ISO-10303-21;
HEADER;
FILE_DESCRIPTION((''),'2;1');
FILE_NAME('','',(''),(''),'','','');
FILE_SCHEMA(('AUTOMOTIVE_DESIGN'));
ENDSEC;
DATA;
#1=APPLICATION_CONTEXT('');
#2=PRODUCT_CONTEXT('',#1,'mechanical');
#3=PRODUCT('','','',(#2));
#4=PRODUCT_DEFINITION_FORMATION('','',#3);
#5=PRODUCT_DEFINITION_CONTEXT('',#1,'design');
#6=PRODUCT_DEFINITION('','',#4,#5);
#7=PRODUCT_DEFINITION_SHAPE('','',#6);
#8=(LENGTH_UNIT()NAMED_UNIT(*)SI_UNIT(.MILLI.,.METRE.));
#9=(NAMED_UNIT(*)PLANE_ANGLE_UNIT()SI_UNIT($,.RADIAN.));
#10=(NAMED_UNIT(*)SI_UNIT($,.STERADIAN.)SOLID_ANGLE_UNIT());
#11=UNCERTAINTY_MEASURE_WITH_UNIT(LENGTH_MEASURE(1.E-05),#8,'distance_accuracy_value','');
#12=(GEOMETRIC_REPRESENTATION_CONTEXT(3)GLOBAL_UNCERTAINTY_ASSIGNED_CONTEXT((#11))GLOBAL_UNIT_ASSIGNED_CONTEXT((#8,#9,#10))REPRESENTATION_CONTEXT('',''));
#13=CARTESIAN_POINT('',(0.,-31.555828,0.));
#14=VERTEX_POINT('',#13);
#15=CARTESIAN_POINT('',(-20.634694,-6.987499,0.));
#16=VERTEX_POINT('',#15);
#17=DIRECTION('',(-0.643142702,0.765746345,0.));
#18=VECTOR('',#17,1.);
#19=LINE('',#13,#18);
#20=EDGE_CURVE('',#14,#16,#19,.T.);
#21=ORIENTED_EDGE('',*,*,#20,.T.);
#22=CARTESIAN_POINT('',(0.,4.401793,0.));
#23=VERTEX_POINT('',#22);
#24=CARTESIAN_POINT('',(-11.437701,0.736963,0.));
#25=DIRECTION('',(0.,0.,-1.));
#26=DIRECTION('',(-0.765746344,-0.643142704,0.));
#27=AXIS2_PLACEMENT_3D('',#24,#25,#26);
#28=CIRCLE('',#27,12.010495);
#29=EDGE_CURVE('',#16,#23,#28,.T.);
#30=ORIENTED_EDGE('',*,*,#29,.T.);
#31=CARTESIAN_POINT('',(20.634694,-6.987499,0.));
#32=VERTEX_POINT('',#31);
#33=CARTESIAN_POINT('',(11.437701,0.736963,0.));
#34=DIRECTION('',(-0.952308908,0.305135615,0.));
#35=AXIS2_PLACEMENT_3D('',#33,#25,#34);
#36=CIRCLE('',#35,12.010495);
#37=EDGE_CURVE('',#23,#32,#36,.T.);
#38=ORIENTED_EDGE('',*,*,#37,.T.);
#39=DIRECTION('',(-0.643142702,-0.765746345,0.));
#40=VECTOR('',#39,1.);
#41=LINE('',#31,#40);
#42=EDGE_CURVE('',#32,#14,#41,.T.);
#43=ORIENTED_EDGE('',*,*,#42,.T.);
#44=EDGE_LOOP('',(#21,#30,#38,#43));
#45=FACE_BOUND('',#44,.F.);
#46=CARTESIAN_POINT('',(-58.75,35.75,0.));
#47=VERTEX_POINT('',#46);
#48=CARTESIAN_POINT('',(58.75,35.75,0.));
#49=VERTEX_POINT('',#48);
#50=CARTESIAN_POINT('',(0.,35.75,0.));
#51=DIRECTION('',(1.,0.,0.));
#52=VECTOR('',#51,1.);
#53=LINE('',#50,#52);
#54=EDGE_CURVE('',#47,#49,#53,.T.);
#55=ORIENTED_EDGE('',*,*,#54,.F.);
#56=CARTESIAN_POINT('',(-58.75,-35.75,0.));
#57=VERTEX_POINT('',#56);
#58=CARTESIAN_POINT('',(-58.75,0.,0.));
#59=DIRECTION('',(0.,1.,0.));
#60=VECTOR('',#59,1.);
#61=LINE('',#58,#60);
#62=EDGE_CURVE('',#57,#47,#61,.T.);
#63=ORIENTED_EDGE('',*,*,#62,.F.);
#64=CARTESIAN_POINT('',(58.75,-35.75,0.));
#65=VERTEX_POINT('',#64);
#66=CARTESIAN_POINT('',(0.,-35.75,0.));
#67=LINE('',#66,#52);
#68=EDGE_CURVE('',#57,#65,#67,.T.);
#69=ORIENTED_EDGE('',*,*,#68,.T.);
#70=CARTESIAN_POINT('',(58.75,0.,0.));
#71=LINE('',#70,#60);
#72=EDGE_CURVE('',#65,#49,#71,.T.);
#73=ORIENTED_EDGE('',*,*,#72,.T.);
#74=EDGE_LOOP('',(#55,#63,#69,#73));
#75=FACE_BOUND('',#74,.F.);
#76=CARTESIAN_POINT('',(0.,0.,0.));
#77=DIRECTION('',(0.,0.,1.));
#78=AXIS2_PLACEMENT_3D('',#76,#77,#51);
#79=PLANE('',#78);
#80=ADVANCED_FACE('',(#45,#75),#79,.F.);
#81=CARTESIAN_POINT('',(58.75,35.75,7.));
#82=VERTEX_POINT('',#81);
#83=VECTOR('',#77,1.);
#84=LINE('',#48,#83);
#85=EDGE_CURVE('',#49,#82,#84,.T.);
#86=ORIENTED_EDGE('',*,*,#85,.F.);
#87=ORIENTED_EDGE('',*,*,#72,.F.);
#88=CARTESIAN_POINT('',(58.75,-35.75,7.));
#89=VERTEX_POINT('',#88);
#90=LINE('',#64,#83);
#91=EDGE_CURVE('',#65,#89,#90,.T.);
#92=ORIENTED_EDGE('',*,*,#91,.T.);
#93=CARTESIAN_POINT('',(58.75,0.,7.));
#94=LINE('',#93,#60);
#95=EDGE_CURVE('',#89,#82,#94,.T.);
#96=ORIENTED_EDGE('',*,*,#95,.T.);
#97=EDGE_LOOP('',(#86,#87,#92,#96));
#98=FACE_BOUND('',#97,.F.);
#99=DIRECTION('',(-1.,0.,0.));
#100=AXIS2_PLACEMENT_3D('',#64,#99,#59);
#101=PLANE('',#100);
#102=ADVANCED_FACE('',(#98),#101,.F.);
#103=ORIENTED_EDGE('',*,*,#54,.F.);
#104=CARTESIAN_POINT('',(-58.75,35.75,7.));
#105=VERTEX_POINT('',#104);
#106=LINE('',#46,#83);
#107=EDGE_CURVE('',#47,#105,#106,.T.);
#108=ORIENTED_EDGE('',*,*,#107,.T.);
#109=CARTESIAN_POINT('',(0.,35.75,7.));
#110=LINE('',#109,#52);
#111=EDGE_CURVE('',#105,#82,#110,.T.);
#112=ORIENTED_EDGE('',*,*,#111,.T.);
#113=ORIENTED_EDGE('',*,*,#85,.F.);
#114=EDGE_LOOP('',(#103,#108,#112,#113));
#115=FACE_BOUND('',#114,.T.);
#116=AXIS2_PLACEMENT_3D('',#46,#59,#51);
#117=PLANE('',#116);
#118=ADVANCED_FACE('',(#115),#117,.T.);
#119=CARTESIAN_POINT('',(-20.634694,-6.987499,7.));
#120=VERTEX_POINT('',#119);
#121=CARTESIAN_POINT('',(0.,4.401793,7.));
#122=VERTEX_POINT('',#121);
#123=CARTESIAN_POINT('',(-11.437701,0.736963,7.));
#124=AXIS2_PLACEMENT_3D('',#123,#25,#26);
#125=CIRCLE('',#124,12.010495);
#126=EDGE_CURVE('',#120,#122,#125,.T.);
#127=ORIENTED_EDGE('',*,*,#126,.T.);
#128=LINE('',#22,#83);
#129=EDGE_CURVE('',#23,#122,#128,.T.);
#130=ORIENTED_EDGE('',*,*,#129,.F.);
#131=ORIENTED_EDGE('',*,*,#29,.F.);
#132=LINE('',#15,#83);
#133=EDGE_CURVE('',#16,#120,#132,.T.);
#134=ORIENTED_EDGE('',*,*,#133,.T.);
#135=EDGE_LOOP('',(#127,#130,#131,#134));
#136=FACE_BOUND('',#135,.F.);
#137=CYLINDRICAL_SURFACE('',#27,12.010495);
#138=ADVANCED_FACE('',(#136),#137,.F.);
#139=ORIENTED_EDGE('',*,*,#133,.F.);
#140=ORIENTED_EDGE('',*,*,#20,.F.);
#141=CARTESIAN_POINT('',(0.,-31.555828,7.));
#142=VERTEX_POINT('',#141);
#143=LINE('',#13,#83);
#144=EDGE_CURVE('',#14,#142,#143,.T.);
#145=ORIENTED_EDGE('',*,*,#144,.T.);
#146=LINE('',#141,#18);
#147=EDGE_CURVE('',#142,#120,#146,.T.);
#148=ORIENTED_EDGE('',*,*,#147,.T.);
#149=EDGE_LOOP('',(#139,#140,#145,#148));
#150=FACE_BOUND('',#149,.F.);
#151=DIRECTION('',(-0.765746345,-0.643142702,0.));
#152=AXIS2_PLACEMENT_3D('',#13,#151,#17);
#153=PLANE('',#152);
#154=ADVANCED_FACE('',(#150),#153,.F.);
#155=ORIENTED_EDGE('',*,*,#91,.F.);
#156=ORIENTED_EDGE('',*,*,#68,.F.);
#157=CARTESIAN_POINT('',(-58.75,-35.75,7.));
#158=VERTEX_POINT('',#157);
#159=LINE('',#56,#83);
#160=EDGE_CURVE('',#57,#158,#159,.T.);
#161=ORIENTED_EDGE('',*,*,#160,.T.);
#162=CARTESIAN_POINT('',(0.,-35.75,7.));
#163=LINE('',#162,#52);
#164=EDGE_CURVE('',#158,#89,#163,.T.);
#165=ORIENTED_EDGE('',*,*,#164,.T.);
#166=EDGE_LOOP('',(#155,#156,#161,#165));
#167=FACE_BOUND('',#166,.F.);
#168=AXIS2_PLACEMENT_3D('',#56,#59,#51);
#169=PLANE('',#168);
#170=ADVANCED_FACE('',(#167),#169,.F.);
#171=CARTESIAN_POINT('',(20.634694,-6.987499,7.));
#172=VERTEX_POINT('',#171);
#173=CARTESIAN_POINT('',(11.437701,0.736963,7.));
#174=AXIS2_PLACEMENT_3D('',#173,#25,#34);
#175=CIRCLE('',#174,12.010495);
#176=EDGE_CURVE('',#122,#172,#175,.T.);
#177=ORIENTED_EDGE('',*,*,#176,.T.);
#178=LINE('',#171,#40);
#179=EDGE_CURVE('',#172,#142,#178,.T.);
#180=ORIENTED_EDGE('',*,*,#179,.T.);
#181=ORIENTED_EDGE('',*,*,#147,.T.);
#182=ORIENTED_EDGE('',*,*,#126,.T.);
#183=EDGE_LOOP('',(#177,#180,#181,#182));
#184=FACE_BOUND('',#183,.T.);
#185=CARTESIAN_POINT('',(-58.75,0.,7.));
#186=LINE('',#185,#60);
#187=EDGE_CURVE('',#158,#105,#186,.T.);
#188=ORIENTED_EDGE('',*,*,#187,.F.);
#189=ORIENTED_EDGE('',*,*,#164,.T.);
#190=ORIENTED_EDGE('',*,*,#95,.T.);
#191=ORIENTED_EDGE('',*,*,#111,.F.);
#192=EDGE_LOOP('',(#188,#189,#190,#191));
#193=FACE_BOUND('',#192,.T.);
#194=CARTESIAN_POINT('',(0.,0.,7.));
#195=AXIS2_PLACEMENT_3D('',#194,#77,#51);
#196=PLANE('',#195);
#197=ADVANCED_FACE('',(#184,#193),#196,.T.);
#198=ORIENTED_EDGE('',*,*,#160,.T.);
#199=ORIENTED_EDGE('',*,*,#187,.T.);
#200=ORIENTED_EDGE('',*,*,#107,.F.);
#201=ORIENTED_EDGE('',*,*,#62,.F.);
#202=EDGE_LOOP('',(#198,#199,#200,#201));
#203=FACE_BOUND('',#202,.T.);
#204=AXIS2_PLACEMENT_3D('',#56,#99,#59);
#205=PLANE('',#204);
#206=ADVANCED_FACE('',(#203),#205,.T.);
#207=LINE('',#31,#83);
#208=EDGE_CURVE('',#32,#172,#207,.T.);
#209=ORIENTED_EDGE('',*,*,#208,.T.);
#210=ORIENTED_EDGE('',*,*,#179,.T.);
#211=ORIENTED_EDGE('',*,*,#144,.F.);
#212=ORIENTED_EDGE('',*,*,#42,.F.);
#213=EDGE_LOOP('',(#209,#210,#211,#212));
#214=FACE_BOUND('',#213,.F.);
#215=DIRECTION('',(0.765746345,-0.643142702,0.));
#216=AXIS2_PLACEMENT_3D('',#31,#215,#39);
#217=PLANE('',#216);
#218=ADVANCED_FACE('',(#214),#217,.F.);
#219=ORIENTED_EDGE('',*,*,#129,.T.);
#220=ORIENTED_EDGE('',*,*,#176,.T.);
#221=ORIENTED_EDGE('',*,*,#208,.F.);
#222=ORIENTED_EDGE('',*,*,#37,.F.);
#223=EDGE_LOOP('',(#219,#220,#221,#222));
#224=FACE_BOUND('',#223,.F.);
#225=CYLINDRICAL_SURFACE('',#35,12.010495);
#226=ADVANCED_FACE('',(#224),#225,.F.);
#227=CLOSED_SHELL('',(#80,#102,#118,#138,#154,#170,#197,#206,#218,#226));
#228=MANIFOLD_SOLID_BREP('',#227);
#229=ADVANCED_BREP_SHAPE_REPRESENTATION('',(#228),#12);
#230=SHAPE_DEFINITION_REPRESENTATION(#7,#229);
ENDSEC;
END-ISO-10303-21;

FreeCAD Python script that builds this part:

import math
import FreeCAD as App
import Part
import Sketcher
from FreeCAD import Vector


def add_polygon(sketch, points):
    """Adds a closed chain of lines whose ends are joined by coincident constraints."""
    first, n = sketch.GeometryCount, len(points)
    for a, b in zip(points, points[1:] + points[:1]):
        sketch.addGeometry(Part.LineSegment(App.Vector(*a, 0), App.Vector(*b, 0)), False)
    for i in range(n):
        sketch.addConstraint(Sketcher.Constraint("Coincident", first + i, 2, first + (i + 1) % n, 1))

doc = App.newDocument("Part")
body = doc.addObject("PartDesign::Body", "Body")

sketch1 = body.newObject("Sketcher::SketchObject", "Sketch")
sketch1.AttachmentSupport = (doc.getObject("XY_Plane"), [""])
sketch1.MapMode = "FlatFace"
add_polygon(sketch1, [(-59, 36), (-59, -36), (59, -36), (59, 36)])
sketch1.addGeometry(Part.ArcOfCircle(Part.Circle(Vector(11, 1, 0), Vector(0, 0, 1), 12), math.radians(-40), math.radians(162)), False)
sketch1.addGeometry(Part.LineSegment(Vector(21, -7, 0), Vector(0, -32, 0)), False)
sketch1.addGeometry(Part.LineSegment(Vector(0, -32, 0), Vector(-21, -7, 0)), False)
sketch1.addGeometry(Part.ArcOfCircle(Part.Circle(Vector(-11, 1, 0), Vector(0, 0, 1), 12), math.radians(18), math.radians(220)), False)
sketch1.addConstraint(Sketcher.Constraint("Tangent", 4, 1, 5, 1))
sketch1.addConstraint(Sketcher.Constraint("Coincident", 5, 2, 6, 1))
sketch1.addConstraint(Sketcher.Constraint("Tangent", 6, 2, 7, 2))
sketch1.addConstraint(Sketcher.Constraint("Coincident", 7, 1, 4, 2))
sketch1.addConstraint(Sketcher.Constraint("Vertical", 0))
sketch1.addConstraint(Sketcher.Constraint("Horizontal", 1))
sketch1.addConstraint(Sketcher.Constraint("Vertical", 2))
sketch1.addConstraint(Sketcher.Constraint("Horizontal", 3))
sketch1.addConstraint(Sketcher.Constraint("Equal", 4, 7))
sketch1.addConstraint(Sketcher.Constraint("Symmetric", 0, 2, 2, 2, -1, 1))
sketch1.addConstraint(Sketcher.Constraint("Symmetric", 4, 3, 7, 3, -2))
sketch1.addConstraint(Sketcher.Constraint("PointOnObject", 5, 2, -2))
sketch1.addConstraint(Sketcher.Constraint("DistanceX", 1, 1, 1, 2, 117.5))
sketch1.addConstraint(Sketcher.Constraint("DistanceY", 0, 2, 0, 1, 71.5))
sketch1.addConstraint(Sketcher.Constraint("Radius", 4, 12.010495))
sketch1.addConstraint(Sketcher.Constraint("DistanceX", -1, 1, 4, 3, 11.437701))
sketch1.addConstraint(Sketcher.Constraint("DistanceY", 4, 1, -1, 1, 6.987499))
sketch1.addConstraint(Sketcher.Constraint("Distance", 5, 32.084161))
pad1 = body.newObject("PartDesign::Pad", "Pad")
pad1.Profile = sketch1
pad1.Length = 7

doc.recompute()
